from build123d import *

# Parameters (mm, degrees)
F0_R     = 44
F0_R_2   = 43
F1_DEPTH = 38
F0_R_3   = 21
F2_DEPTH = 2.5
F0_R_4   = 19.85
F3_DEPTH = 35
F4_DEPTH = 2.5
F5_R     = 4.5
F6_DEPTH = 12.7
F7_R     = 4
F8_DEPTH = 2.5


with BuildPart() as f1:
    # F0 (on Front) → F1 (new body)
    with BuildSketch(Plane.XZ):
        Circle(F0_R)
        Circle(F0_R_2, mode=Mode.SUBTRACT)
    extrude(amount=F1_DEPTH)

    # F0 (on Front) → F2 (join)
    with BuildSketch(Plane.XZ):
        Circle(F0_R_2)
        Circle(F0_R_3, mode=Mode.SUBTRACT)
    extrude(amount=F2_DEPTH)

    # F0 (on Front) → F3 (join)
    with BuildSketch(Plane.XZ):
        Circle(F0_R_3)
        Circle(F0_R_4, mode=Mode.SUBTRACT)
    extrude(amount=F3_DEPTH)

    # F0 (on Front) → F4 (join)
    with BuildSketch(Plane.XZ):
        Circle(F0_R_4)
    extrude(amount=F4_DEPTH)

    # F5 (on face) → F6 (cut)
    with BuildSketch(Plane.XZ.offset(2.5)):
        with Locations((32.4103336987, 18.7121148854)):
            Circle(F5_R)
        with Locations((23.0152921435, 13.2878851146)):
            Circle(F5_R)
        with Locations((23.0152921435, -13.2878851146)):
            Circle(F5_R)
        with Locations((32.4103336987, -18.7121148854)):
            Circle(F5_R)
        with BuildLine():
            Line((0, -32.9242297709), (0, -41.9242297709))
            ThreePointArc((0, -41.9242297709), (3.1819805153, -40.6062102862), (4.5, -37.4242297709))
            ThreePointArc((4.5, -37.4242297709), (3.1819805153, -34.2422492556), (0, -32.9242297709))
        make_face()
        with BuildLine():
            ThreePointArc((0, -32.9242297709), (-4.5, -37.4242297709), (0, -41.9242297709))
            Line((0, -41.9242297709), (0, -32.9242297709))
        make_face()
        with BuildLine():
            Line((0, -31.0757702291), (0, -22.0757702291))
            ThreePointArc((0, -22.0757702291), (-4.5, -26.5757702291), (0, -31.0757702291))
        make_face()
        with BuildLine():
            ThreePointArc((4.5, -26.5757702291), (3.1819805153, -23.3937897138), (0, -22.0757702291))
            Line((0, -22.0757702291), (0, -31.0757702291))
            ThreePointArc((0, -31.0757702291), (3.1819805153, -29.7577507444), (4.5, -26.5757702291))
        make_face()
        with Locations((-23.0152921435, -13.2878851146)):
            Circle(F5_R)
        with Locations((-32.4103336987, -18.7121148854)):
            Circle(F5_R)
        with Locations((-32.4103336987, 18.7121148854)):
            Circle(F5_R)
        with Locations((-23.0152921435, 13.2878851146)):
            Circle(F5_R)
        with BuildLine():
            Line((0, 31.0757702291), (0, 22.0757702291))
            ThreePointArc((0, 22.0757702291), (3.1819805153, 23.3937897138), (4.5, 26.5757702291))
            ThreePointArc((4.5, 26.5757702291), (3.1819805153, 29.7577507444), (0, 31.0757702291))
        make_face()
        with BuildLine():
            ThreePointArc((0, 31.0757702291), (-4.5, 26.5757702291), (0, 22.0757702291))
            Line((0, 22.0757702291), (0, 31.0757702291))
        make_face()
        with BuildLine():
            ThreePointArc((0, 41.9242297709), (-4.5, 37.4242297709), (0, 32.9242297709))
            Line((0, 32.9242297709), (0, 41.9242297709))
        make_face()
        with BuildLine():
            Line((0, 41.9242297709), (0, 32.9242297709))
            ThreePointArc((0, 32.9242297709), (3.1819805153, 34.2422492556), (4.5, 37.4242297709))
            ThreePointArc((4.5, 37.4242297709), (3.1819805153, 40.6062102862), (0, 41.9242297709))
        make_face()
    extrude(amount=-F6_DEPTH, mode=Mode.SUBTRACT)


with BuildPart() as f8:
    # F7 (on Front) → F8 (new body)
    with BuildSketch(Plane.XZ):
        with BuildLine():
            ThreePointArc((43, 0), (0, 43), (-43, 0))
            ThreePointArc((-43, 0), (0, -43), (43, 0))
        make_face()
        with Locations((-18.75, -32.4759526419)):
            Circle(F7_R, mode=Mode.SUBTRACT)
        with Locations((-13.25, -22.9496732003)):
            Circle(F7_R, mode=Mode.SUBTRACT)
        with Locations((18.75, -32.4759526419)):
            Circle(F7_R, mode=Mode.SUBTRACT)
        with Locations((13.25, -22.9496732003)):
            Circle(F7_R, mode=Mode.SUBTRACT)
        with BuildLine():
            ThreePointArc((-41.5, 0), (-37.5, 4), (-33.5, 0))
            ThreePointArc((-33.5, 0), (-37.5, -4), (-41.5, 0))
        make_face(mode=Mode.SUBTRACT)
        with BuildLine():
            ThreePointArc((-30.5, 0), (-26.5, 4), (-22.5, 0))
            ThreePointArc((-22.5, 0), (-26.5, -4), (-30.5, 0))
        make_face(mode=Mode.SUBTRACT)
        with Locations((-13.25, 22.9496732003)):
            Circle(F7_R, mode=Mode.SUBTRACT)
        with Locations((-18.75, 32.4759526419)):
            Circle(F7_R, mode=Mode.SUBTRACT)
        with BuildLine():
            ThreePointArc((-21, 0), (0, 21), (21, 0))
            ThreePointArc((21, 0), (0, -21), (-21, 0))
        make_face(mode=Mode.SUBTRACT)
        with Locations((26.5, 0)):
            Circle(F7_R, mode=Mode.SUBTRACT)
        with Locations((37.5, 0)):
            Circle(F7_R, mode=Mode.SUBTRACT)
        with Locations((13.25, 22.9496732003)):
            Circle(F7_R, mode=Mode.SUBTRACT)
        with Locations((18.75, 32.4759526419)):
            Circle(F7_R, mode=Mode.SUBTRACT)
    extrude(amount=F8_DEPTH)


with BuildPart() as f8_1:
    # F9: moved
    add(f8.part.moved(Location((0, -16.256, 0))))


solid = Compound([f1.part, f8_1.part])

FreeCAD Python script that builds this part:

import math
import FreeCAD as App
import Part
import Sketcher

V = App.Vector

doc = App.newDocument("Part")
body = doc.addObject("PartDesign::Body", "Body")

# Sketch on XZ plane
sketch1 = doc.addObject("Sketcher::SketchObject", "Sketch")
body.addObject(sketch1)
sketch1.AttachmentSupport = (doc.XZ_Plane, [""])
sketch1.MapMode = "FlatFace"
sketch1.addGeometry([
    Part.Circle(V(0, 0, 0), V(0, 0, 1), 44),
    Part.Circle(V(0, 0, 0), V(0, 0, 1), 43),
], False)
sketch1.addConstraint([
    Sketcher.Constraint("Coincident", 0, 3, -1, 1),
    Sketcher.Constraint("Coincident", 1, 3, -1, 1),
    Sketcher.Constraint("Diameter", 0, 88.0),
    Sketcher.Constraint("Diameter", 1, 86.0),
])
pad1 = doc.addObject("PartDesign::Pad", "Pad")
body.addObject(pad1)
pad1.Profile = sketch1
pad1.Length = 38

# Sketch on XZ plane
sketch2 = doc.addObject("Sketcher::SketchObject", "Sketch001")
body.addObject(sketch2)
sketch2.AttachmentSupport = (doc.XZ_Plane, [""])
sketch2.MapMode = "FlatFace"
sketch2.addGeometry([
    Part.Circle(V(0, 0, 0), V(0, 0, 1), 43),
    Part.Circle(V(0, 0, 0), V(0, 0, 1), 21),
], False)
sketch2.addConstraint([
    Sketcher.Constraint("Coincident", 0, 3, -1, 1),
    Sketcher.Constraint("Coincident", 1, 3, -1, 1),
    Sketcher.Constraint("Diameter", 0, 86.0),
    Sketcher.Constraint("Diameter", 1, 42.0),
])
pad2 = doc.addObject("PartDesign::Pad", "Pad001")
body.addObject(pad2)
pad2.Profile = sketch2
pad2.Length = 2.5

# Sketch on XZ plane
sketch3 = doc.addObject("Sketcher::SketchObject", "Sketch002")
body.addObject(sketch3)
sketch3.AttachmentSupport = (doc.XZ_Plane, [""])
sketch3.MapMode = "FlatFace"
sketch3.addGeometry([
    Part.Circle(V(0, 0, 0), V(0, 0, 1), 21),
    Part.Circle(V(0, 0, 0), V(0, 0, 1), 19.85),
], False)
sketch3.addConstraint([
    Sketcher.Constraint("Coincident", 0, 3, -1, 1),
    Sketcher.Constraint("Coincident", 1, 3, -1, 1),
    Sketcher.Constraint("Diameter", 0, 42.0),
    Sketcher.Constraint("Diameter", 1, 39.7),
])
pad3 = doc.addObject("PartDesign::Pad", "Pad002")
body.addObject(pad3)
pad3.Profile = sketch3
pad3.Length = 35

# Sketch on XZ plane
sketch4 = doc.addObject("Sketcher::SketchObject", "Sketch003")
body.addObject(sketch4)
sketch4.AttachmentSupport = (doc.XZ_Plane, [""])
sketch4.MapMode = "FlatFace"
sketch4.addGeometry(Part.Circle(V(0, 0, 0), V(0, 0, 1), 19.85), False)
sketch4.addConstraint([
    Sketcher.Constraint("Coincident", 0, 3, -1, 1),
    Sketcher.Constraint("Diameter", 0, 39.7),
])
pad4 = doc.addObject("PartDesign::Pad", "Pad003")
body.addObject(pad4)
pad4.Profile = sketch4
pad4.Length = 2.5

# Sketch on XZ plane
sketch5 = doc.addObject("Sketcher::SketchObject", "Sketch004")
body.addObject(sketch5)
sketch5.AttachmentSupport = (doc.XZ_Plane, [""])
sketch5.MapMode = "FlatFace"
sketch5.AttachmentOffset = App.Placement(V(0, 0, 2.5), App.Rotation())
sketch5.addGeometry([
    Part.Circle(V(32.410334, 18.712115, 0), V(0, 0, 1), 4.5),  # 0
    Part.Circle(V(23.015292, 13.287885, 0), V(0, 0, 1), 4.5),  # 1
    Part.Circle(V(23.015292, -13.287885, 0), V(0, 0, 1), 4.5),  # 2
    Part.Circle(V(32.410334, -18.712115, 0), V(0, 0, 1), 4.5),  # 3
    Part.ArcOfCircle(Part.Circle(V(0, -37.42423, 0), V(0, 0, 1), 4.5), math.radians(-90), math.radians(0)),  # 4
    Part.ArcOfCircle(Part.Circle(V(0, -37.42423, 0), V(0, 0, 1), 4.5), math.radians(0), math.radians(90)),  # 5
    Part.ArcOfCircle(Part.Circle(V(0, -37.42423, 0), V(0, 0, 1), 4.5), math.radians(90), math.radians(270)),  # 6
    Part.ArcOfCircle(Part.Circle(V(0, -26.57577, 0), V(0, 0, 1), 4.5), math.radians(90), math.radians(270)),  # 7
    Part.ArcOfCircle(Part.Circle(V(0, -26.57577, 0), V(0, 0, 1), 4.5), math.radians(-90), math.radians(0)),  # 8
    Part.ArcOfCircle(Part.Circle(V(0, -26.57577, 0), V(0, 0, 1), 4.5), math.radians(0), math.radians(90)),  # 9
    Part.Circle(V(-23.015292, -13.287885, 0), V(0, 0, 1), 4.5),  # 10
    Part.Circle(V(-32.410334, -18.712115, 0), V(0, 0, 1), 4.5),  # 11
    Part.Circle(V(-32.410334, 18.712115, 0), V(0, 0, 1), 4.5),  # 12
    Part.Circle(V(-23.015292, 13.287885, 0), V(0, 0, 1), 4.5),  # 13
    Part.ArcOfCircle(Part.Circle(V(0, 26.57577, 0), V(0, 0, 1), 4.5), math.radians(-90), math.radians(0)),  # 14
    Part.ArcOfCircle(Part.Circle(V(0, 26.57577, 0), V(0, 0, 1), 4.5), math.radians(0), math.radians(90)),  # 15
    Part.ArcOfCircle(Part.Circle(V(0, 26.57577, 0), V(0, 0, 1), 4.5), math.radians(90), math.radians(270)),  # 16
    Part.ArcOfCircle(Part.Circle(V(0, 37.42423, 0), V(0, 0, 1), 4.5), math.radians(90), math.radians(270)),  # 17
    Part.ArcOfCircle(Part.Circle(V(0, 37.42423, 0), V(0, 0, 1), 4.5), math.radians(-90), math.radians(0)),  # 18
    Part.ArcOfCircle(Part.Circle(V(0, 37.42423, 0), V(0, 0, 1), 4.5), math.radians(0), math.radians(90)),  # 19
], False)
sketch5.addConstraint([
    Sketcher.Constraint("Tangent", 4, 2, 5, 1),
    Sketcher.Constraint("Tangent", 5, 2, 6, 1),
    Sketcher.Constraint("Tangent", 6, 2, 4, 1),
    Sketcher.Constraint("Tangent", 7, 2, 8, 1),
    Sketcher.Constraint("Tangent", 8, 2, 9, 1),
    Sketcher.Constraint("Tangent", 9, 2, 7, 1),
    Sketcher.Constraint("Tangent", 14, 2, 15, 1),
    Sketcher.Constraint("Tangent", 15, 2, 16, 1),
    Sketcher.Constraint("Tangent", 16, 2, 14, 1),
    Sketcher.Constraint("Tangent", 17, 2, 18, 1),
    Sketcher.Constraint("Tangent", 18, 2, 19, 1),
    Sketcher.Constraint("Tangent", 19, 2, 17, 1),
    Sketcher.Constraint("Equal", 0, 1),
    Sketcher.Constraint("Equal", 1, 2),
    Sketcher.Constraint("Equal", 2, 3),
    Sketcher.Constraint("Equal", 3, 4),
    Sketcher.Constraint("Equal", 6, 7),
    Sketcher.Constraint("Equal", 9, 10),
    Sketcher.Constraint("Equal", 10, 11),
    Sketcher.Constraint("Equal", 11, 12),
    Sketcher.Constraint("Equal", 12, 13),
    Sketcher.Constraint("Equal", 13, 14),
    Sketcher.Constraint("Equal", 16, 17),
    Sketcher.Constraint("Symmetric", 1, 3, 10, 3, -1, 1),
    Sketcher.Constraint("Symmetric", 0, 3, 11, 3, -1, 1),
    Sketcher.Constraint("Symmetric", 3, 3, 12, 3, -1, 1),
    Sketcher.Constraint("Symmetric", 2, 3, 13, 3, -1, 1),
    Sketcher.Constraint("Symmetric", 7, 3, 14, 3, -1, 1),
    Sketcher.Constraint("Symmetric", 4, 3, 17, 3, -1, 1),
    Sketcher.Constraint("Symmetric", 2, 3, 10, 3, -2),
    Sketcher.Constraint("Symmetric", 3, 3, 11, 3, -2),
    Sketcher.Constraint("Symmetric", 8, 2, 14, 2, -1),
    Sketcher.Constraint("Symmetric", 4, 2, 18, 2, -1),
    Sketcher.Constraint("PointOnObject", 5, 2, -2),
    Sketcher.Constraint("PointOnObject", 6, 2, -2),
    Sketcher.Constraint("PointOnObject", 7, 2, -2),
    Sketcher.Constraint("PointOnObject", 9, 2, -2),
    Sketcher.Constraint("PointOnObject", 15, 2, -2),
    Sketcher.Constraint("PointOnObject", 16, 2, -2),
    Sketcher.Constraint("PointOnObject", 17, 2, -2),
    Sketcher.Constraint("PointOnObject", 19, 2, -2),
    Sketcher.Constraint("Horizontal", 6, 3, 4, 2),
    Sketcher.Constraint("Horizontal", 9, 3, 8, 2),
    Sketcher.Constraint("Diameter", 0, 9.0),
    Sketcher.Constraint("DistanceY", 2, 3, 0, 3, 32.0),
    Sketcher.Constraint("DistanceY", 4, 3, -1, 1, 37.42423),
    Sketcher.Constraint("DistanceY", 7, 3, -1, 1, 26.57577),
    Sketcher.Constraint("DistanceX", 1, 3, 0, 3, 9.395042),
    Sketcher.Constraint("DistanceY", 1, 3, 0, 3, 5.42423),
    Sketcher.Constraint("DistanceX", -1, 1, 0, 3, 32.410334),
])
pocket1 = doc.addObject("PartDesign::Pocket", "Pocket")
body.addObject(pocket1)
pocket1.Profile = sketch5
pocket1.Length = 12.7
body2 = doc.addObject("PartDesign::Body", "Body001")

# Sketch on XZ plane
sketch6 = doc.addObject("Sketcher::SketchObject", "Sketch005")
body2.addObject(sketch6)
sketch6.AttachmentSupport = (doc.getObject("XZ_Plane001"), [""])
sketch6.MapMode = "FlatFace"
sketch6.addGeometry([
    Part.Circle(V(0, 0, 0), V(0, 0, 1), 43),  # 0
    Part.Circle(V(-18.75, -32.475953, 0), V(0, 0, 1), 4),  # 1
    Part.Circle(V(-13.25, -22.949673, 0), V(0, 0, 1), 4),  # 2
    Part.Circle(V(18.75, -32.475953, 0), V(0, 0, 1), 4),  # 3
    Part.Circle(V(13.25, -22.949673, 0), V(0, 0, 1), 4),  # 4
    Part.Circle(V(-37.5, 0, 0), V(0, 0, 1), 4),  # 5
    Part.Circle(V(-26.5, 0, 0), V(0, 0, 1), 4),  # 6
    Part.Circle(V(-13.25, 22.949673, 0), V(0, 0, 1), 4),  # 7
    Part.Circle(V(-18.75, 32.475953, 0), V(0, 0, 1), 4),  # 8
    Part.Circle(V(0, 0, 0), V(0, 0, 1), 21),  # 9
    Part.Circle(V(26.5, 0, 0), V(0, 0, 1), 4),  # 10
    Part.Circle(V(37.5, 0, 0), V(0, 0, 1), 4),  # 11
    Part.Circle(V(13.25, 22.949673, 0), V(0, 0, 1), 4),  # 12
    Part.Circle(V(18.75, 32.475953, 0), V(0, 0, 1), 4),  # 13
], False)
sketch6.addConstraint([
    Sketcher.Constraint("Coincident", 0, 3, -1, 1),
    Sketcher.Constraint("Coincident", 9, 3, -1, 1),
    Sketcher.Constraint("Equal", 1, 2),
    Sketcher.Constraint("Equal", 2, 3),
    Sketcher.Constraint("Equal", 3, 4),
    Sketcher.Constraint("Equal", 4, 5),
    Sketcher.Constraint("Equal", 5, 6),
    Sketcher.Constraint("Equal", 6, 7),
    Sketcher.Constraint("Equal", 7, 8),
    Sketcher.Constraint("Equal", 8, 10),
    Sketcher.Constraint("Equal", 10, 11),
    Sketcher.Constraint("Equal", 11, 12),
    Sketcher.Constraint("Equal", 12, 13),
    Sketcher.Constraint("Symmetric", 4, 3, 7, 3, -1, 1),
    Sketcher.Constraint("Symmetric", 3, 3, 8, 3, -1, 1),
    Sketcher.Constraint("Symmetric", 6, 3, 10, 3, -1, 1),
    Sketcher.Constraint("Symmetric", 5, 3, 11, 3, -1, 1),
    Sketcher.Constraint("Symmetric", 2, 3, 12, 3, -1, 1),
    Sketcher.Constraint("Symmetric", 1, 3, 13, 3, -1, 1),
    Sketcher.Constraint("Symmetric", 1, 3, 3, 3, -2),
    Sketcher.Constraint("Symmetric", 2, 3, 4, 3, -2),
    Sketcher.Constraint("PointOnObject", 5, 3, -1),
    Sketcher.Constraint("PointOnObject", 6, 3, -1),
    Sketcher.Constraint("Diameter", 0, 86.0),
    Sketcher.Constraint("Diameter", 1, 8.0),
    Sketcher.Constraint("Diameter", 9, 42.0),
    Sketcher.Constraint("DistanceX", 2, 3, 3, 3, 32.0),
    Sketcher.Constraint("DistanceX", 5, 3, 6, 3, 11.0),
    Sketcher.Constraint("DistanceX", 5, 3, -1, 1, 37.5),
    Sketcher.Constraint("DistanceX", 1, 3, 2, 3, 5.5),
    Sketcher.Constraint("DistanceY", 1, 3, 2, 3, 9.526279),
    Sketcher.Constraint("DistanceY", 1, 3, -1, 1, 32.475953),
])
pad5 = doc.addObject("PartDesign::Pad", "Pad004")
body2.addObject(pad5)
pad5.Profile = sketch6
pad5.Length = 2.5
body3 = doc.addObject("PartDesign::Body", "Body002")
doc.recompute()

body2.Placement = App.Placement(V(0, -16.256, 0), App.Rotation(V(0, 0, 1), 0))
boolean = doc.addObject("PartDesign::Boolean", "Boolean")
body3.addObject(boolean)
boolean.Type = "Fuse"
boolean.addObjects([body2])

doc.recompute()
